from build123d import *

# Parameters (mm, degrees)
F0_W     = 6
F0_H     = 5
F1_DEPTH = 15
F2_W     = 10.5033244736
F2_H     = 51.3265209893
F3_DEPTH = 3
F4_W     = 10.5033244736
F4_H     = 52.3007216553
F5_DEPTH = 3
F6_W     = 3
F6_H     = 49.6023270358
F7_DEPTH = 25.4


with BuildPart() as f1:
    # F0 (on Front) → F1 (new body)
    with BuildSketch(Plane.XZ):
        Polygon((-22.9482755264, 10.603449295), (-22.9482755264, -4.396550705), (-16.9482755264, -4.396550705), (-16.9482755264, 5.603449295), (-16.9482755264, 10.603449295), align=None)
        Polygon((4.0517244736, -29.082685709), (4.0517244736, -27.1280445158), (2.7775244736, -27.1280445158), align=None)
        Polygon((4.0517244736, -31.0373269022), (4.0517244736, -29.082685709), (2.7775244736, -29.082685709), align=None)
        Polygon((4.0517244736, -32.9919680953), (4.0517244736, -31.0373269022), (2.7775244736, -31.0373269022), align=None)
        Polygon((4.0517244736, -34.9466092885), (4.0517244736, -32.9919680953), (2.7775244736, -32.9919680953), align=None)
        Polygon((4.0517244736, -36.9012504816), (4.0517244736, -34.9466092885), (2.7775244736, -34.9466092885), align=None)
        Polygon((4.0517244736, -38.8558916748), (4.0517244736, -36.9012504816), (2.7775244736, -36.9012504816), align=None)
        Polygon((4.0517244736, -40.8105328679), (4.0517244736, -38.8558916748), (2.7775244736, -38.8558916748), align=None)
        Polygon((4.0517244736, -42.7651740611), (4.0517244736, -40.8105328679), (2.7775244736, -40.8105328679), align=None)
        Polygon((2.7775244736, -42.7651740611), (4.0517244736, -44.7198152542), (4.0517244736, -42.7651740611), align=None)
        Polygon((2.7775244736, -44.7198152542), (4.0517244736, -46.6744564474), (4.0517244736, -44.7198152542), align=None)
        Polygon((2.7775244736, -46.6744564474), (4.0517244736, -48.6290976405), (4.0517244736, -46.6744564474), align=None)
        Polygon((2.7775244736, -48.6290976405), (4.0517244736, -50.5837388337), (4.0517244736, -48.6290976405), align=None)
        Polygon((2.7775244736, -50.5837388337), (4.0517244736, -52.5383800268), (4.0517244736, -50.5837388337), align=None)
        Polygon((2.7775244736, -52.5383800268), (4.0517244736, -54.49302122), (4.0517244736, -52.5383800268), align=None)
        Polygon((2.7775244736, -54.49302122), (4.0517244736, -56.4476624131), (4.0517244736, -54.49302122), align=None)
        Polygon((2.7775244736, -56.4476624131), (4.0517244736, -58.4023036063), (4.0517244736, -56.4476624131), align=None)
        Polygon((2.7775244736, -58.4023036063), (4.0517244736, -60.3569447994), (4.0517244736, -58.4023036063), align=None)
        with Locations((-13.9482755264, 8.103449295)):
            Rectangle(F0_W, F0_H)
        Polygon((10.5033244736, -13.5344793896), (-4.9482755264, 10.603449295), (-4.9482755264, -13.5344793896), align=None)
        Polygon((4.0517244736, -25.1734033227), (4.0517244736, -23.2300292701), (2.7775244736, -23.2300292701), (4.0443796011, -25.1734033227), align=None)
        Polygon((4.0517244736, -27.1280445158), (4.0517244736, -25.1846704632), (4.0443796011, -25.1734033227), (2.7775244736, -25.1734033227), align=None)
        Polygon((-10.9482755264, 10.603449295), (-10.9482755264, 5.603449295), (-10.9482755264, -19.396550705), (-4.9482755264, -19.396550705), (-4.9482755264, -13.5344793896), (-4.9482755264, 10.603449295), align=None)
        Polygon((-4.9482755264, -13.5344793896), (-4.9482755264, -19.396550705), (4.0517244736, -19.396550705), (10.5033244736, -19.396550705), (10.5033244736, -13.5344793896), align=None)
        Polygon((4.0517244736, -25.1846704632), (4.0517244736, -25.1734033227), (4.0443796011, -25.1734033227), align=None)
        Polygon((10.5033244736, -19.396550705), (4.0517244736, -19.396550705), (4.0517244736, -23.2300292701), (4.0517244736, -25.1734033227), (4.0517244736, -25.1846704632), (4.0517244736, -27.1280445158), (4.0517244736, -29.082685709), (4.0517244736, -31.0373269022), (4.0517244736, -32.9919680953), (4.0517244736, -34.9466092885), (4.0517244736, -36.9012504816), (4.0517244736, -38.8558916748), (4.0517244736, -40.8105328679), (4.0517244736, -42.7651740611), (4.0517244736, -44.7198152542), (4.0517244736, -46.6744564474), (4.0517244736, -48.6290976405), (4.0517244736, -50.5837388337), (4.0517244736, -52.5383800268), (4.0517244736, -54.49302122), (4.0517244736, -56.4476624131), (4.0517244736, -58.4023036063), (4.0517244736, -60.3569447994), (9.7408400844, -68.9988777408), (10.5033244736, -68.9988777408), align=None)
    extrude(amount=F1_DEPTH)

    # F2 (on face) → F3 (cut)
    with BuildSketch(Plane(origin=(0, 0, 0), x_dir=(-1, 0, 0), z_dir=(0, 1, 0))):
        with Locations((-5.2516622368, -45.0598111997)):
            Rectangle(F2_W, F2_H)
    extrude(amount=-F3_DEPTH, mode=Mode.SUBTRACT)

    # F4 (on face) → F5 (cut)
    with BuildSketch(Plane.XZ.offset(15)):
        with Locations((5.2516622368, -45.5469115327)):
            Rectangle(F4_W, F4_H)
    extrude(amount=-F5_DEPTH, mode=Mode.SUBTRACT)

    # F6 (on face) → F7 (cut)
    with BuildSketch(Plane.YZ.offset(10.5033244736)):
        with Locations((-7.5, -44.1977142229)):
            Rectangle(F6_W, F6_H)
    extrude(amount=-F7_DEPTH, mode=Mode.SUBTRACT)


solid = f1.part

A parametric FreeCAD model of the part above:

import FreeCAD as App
import Part
import Sketcher
Q = App.Units.Quantity


def add_polygon(sketch, points):
    """Adds a closed chain of lines whose ends are joined by coincident constraints."""
    first, n = sketch.GeometryCount, len(points)
    for a, b in zip(points, points[1:] + points[:1]):
        sketch.addGeometry(Part.LineSegment(App.Vector(*a, 0), App.Vector(*b, 0)), False)
    for i in range(n):
        sketch.addConstraint(Sketcher.Constraint("Coincident", first + i, 2, first + (i + 1) % n, 1))

doc = App.newDocument("Part")
body = doc.addObject("PartDesign::Body", "Body")

sketch1 = body.newObject("Sketcher::SketchObject", "Sketch")
sketch1.AttachmentSupport = (doc.getObject("XZ_Plane"), [""])
sketch1.MapMode = "FlatFace"
add_polygon(sketch1, [(-22.9, 10.6), (-22.9, -4.4), (-16.9, -4.4), (-16.9, 5.6), (-10.9, 5.6), (-10.9, -19.4), (4.1, -19.4), (4.1, -23.2), (2.8, -23.2), (4, -25.2), (2.8, -25.2), (4.1, -27.1), (2.8, -27.1), (4.1, -29.1), (2.8, -29.1), (4.1, -31), (2.8, -31), (4.1, -33), (2.8, -33), (4.1, -34.9), (2.8, -34.9), (4.1, -36.9), (2.8, -36.9), (4.1, -38.9), (2.8, -38.9), (4.1, -40.8), (2.8, -40.8), (4.1, -42.8), (2.8, -42.8), (4.1, -44.7), (2.8, -44.7), (4.1, -46.7), (2.8, -46.7), (4.1, -48.6), (2.8, -48.6), (4.1, -50.6), (2.8, -50.6), (4.1, -52.5), (2.8, -52.5), (4.1, -54.5), (2.8, -54.5), (4.1, -56.4), (2.8, -56.4), (4.1, -58.4), (2.8, -58.4), (4.1, -60.4), (9.7, -69), (10.5, -69), (10.5, -13.5), (-4.9, 10.6)])
sketch1.addConstraint(Sketcher.Constraint("Vertical", 0))
sketch1.addConstraint(Sketcher.Constraint("Horizontal", 1))
sketch1.addConstraint(Sketcher.Constraint("Vertical", 2))
sketch1.addConstraint(Sketcher.Constraint("Horizontal", 3))
sketch1.addConstraint(Sketcher.Constraint("Vertical", 4))
sketch1.addConstraint(Sketcher.Constraint("Horizontal", 5))
sketch1.addConstraint(Sketcher.Constraint("Vertical", 6))
sketch1.addConstraint(Sketcher.Constraint("Horizontal", 7))
sketch1.addConstraint(Sketcher.Constraint("Horizontal", 9))
sketch1.addConstraint(Sketcher.Constraint("Horizontal", 11))
sketch1.addConstraint(Sketcher.Constraint("Horizontal", 13))
sketch1.addConstraint(Sketcher.Constraint("Horizontal", 15))
sketch1.addConstraint(Sketcher.Constraint("Horizontal", 17))
sketch1.addConstraint(Sketcher.Constraint("Horizontal", 19))
sketch1.addConstraint(Sketcher.Constraint("Horizontal", 21))
sketch1.addConstraint(Sketcher.Constraint("Horizontal", 23))
sketch1.addConstraint(Sketcher.Constraint("Horizontal", 25))
sketch1.addConstraint(Sketcher.Constraint("Horizontal", 27))
sketch1.addConstraint(Sketcher.Constraint("Horizontal", 29))
sketch1.addConstraint(Sketcher.Constraint("Horizontal", 31))
sketch1.addConstraint(Sketcher.Constraint("Horizontal", 33))
sketch1.addConstraint(Sketcher.Constraint("Horizontal", 35))
sketch1.addConstraint(Sketcher.Constraint("Horizontal", 37))
sketch1.addConstraint(Sketcher.Constraint("Horizontal", 39))
sketch1.addConstraint(Sketcher.Constraint("Horizontal", 41))
sketch1.addConstraint(Sketcher.Constraint("Horizontal", 43))
sketch1.addConstraint(Sketcher.Constraint("Horizontal", 46))
sketch1.addConstraint(Sketcher.Constraint("Vertical", 47))
sketch1.addConstraint(Sketcher.Constraint("Horizontal", 49))
sketch1.addConstraint(Sketcher.Constraint("Parallel", 8, 10))
sketch1.addConstraint(Sketcher.Constraint("Parallel", 10, 12))
sketch1.addConstraint(Sketcher.Constraint("Parallel", 12, 14))
sketch1.addConstraint(Sketcher.Constraint("Parallel", 14, 16))
sketch1.addConstraint(Sketcher.Constraint("Parallel", 16, 18))
sketch1.addConstraint(Sketcher.Constraint("Parallel", 18, 20))
sketch1.addConstraint(Sketcher.Constraint("Parallel", 20, 22))
sketch1.addConstraint(Sketcher.Constraint("Parallel", 22, 24))
sketch1.addConstraint(Sketcher.Constraint("Parallel", 24, 26))
sketch1.addConstraint(Sketcher.Constraint("Parallel", 26, 28))
sketch1.addConstraint(Sketcher.Constraint("Parallel", 28, 30))
sketch1.addConstraint(Sketcher.Constraint("Parallel", 30, 32))
sketch1.addConstraint(Sketcher.Constraint("Parallel", 32, 34))
sketch1.addConstraint(Sketcher.Constraint("Parallel", 34, 36))
sketch1.addConstraint(Sketcher.Constraint("Parallel", 36, 38))
sketch1.addConstraint(Sketcher.Constraint("Parallel", 38, 40))
sketch1.addConstraint(Sketcher.Constraint("Parallel", 40, 42))
sketch1.addConstraint(Sketcher.Constraint("Parallel", 42, 44))
sketch1.addConstraint(Sketcher.Constraint("Vertical", 7, 2, 9, 2))
sketch1.addConstraint(Sketcher.Constraint("Vertical", 6, 2, 10, 2))
sketch1.addConstraint(Sketcher.Constraint("Vertical", 9, 2, 11, 2))
sketch1.addConstraint(Sketcher.Constraint("Vertical", 10, 2, 12, 2))
sketch1.addConstraint(Sketcher.Constraint("Vertical", 11, 2, 13, 2))
sketch1.addConstraint(Sketcher.Constraint("Vertical", 12, 2, 14, 2))
sketch1.addConstraint(Sketcher.Constraint("Vertical", 13, 2, 15, 2))
sketch1.addConstraint(Sketcher.Constraint("Vertical", 14, 2, 16, 2))
sketch1.addConstraint(Sketcher.Constraint("Vertical", 15, 2, 17, 2))
sketch1.addConstraint(Sketcher.Constraint("Vertical", 16, 2, 18, 2))
sketch1.addConstraint(Sketcher.Constraint("Vertical", 17, 2, 19, 2))
sketch1.addConstraint(Sketcher.Constraint("Vertical", 18, 2, 20, 2))
sketch1.addConstraint(Sketcher.Constraint("Vertical", 19, 2, 21, 2))
sketch1.addConstraint(Sketcher.Constraint("Vertical", 20, 2, 22, 2))
sketch1.addConstraint(Sketcher.Constraint("Vertical", 21, 2, 23, 2))
sketch1.addConstraint(Sketcher.Constraint("Vertical", 22, 2, 24, 2))
sketch1.addConstraint(Sketcher.Constraint("Vertical", 23, 2, 25, 2))
sketch1.addConstraint(Sketcher.Constraint("Vertical", 24, 2, 26, 2))
sketch1.addConstraint(Sketcher.Constraint("Vertical", 25, 2, 27, 2))
sketch1.addConstraint(Sketcher.Constraint("Vertical", 26, 2, 28, 2))
sketch1.addConstraint(Sketcher.Constraint("Vertical", 27, 2, 29, 2))
sketch1.addConstraint(Sketcher.Constraint("Vertical", 28, 2, 30, 2))
sketch1.addConstraint(Sketcher.Constraint("Vertical", 29, 2, 31, 2))
sketch1.addConstraint(Sketcher.Constraint("Vertical", 30, 2, 32, 2))
sketch1.addConstraint(Sketcher.Constraint("Vertical", 31, 2, 33, 2))
sketch1.addConstraint(Sketcher.Constraint("Vertical", 32, 2, 34, 2))
sketch1.addConstraint(Sketcher.Constraint("Vertical", 33, 2, 35, 2))
sketch1.addConstraint(Sketcher.Constraint("Vertical", 34, 2, 36, 2))
sketch1.addConstraint(Sketcher.Constraint("Vertical", 35, 2, 37, 2))
sketch1.addConstraint(Sketcher.Constraint("Vertical", 36, 2, 38, 2))
sketch1.addConstraint(Sketcher.Constraint("Vertical", 37, 2, 39, 2))
sketch1.addConstraint(Sketcher.Constraint("Vertical", 38, 2, 40, 2))
sketch1.addConstraint(Sketcher.Constraint("Vertical", 39, 2, 41, 2))
sketch1.addConstraint(Sketcher.Constraint("Vertical", 40, 2, 42, 2))
sketch1.addConstraint(Sketcher.Constraint("Vertical", 41, 2, 43, 2))
sketch1.addConstraint(Sketcher.Constraint("Vertical", 42, 2, 44, 2))
sketch1.addConstraint(Sketcher.Constraint("Equal", 1, 3))
sketch1.addConstraint(Sketcher.Constraint("Equal", 5, 0))
sketch1.addConstraint(Sketcher.Constraint("DistanceX", 1, 1, 1, 2, Q("6 mm")))
sketch1.addConstraint(Sketcher.Constraint("DistanceX", 5, 1, 5, 2, Q("15 mm")))
sketch1.addConstraint(Sketcher.Constraint("DistanceX", 49, 2, 49, 1, Q("18 mm")))
sketch1.addConstraint(Sketcher.Constraint("DistanceY", 2, 1, 2, 2, Q("10 mm")))
sketch1.addConstraint(Sketcher.Constraint("DistanceY", 4, 2, 4, 1, Q("25 mm")))
sketch1.addConstraint(Sketcher.Constraint("DistanceX", 7, 2, 7, 1, Q("1.2742 mm")))
sketch1.addConstraint(Sketcher.Constraint("DistanceY", 47, 1, 47, 2, Q("55.464398 mm")))
sketch1.addConstraint(Sketcher.Constraint("DistanceY", 6, 2, 6, 1, Q("3.833479 mm")))
sketch1.addConstraint(Sketcher.Constraint("DistanceX", 44, 2, 46, 2, Q("6.4516 mm")))
sketch1.addConstraint(Sketcher.Constraint("Distance", 45, Q("10.346451 mm")))
sketch1.addConstraint(Sketcher.Constraint("Distance", 48, Q("28.659929 mm")))
sketch1.addConstraint(Sketcher.Constraint("DistanceX", 9, 2, 9, 1, Q("1.266855 mm")))
sketch1.addConstraint(Sketcher.Constraint("DistanceX", 46, 1, 46, 2, Q("0.762484 mm")))
sketch1.addConstraint(Sketcher.Constraint("DistanceY", 0, 2, -1, 1, Q("4.396551 mm")))
sketch1.addConstraint(Sketcher.Constraint("DistanceX", -1, 1, 8, 2, Q("4.04438 mm")))
pad1 = body.newObject("PartDesign::Pad", "Pad")
pad1.Profile = sketch1
pad1.Length = 15

sketch2 = body.newObject("Sketcher::SketchObject", "Sketch001")
sketch2.AttachmentSupport = (doc.getObject("XZ_Plane"), [""])
sketch2.MapMode = "FlatFace"
add_polygon(sketch2, [(11, -19), (11, -71), (0, -71), (0, -19)])
sketch2.addConstraint(Sketcher.Constraint("Vertical", 0))
sketch2.addConstraint(Sketcher.Constraint("Horizontal", 1))
sketch2.addConstraint(Sketcher.Constraint("Vertical", 2))
sketch2.addConstraint(Sketcher.Constraint("Horizontal", 3))
sketch2.addConstraint(Sketcher.Constraint("PointOnObject", 1, 2, -2))
sketch2.addConstraint(Sketcher.Constraint("DistanceY", 0, 2, 0, 1, Q("51.326521 mm")))
sketch2.addConstraint(Sketcher.Constraint("DistanceX", 1, 2, 1, 1, Q("10.503324 mm")))
sketch2.addConstraint(Sketcher.Constraint("DistanceY", 0, 2, -1, 1, Q("70.723072 mm")))
pocket1 = body.newObject("PartDesign::Pocket", "Pocket")
pocket1.Profile = sketch2
pocket1.Length = 3
pocket1.Reversed = True

sketch3 = body.newObject("Sketcher::SketchObject", "Sketch002")
sketch3.AttachmentSupport = (doc.getObject("XZ_Plane"), [""])
sketch3.MapMode = "FlatFace"
sketch3.AttachmentOffset = App.Placement(App.Vector(0, 0, 15), App.Rotation())
add_polygon(sketch3, [(0, -19), (0, -72), (11, -72), (11, -19)])
sketch3.addConstraint(Sketcher.Constraint("Vertical", 0))
sketch3.addConstraint(Sketcher.Constraint("Horizontal", 1))
sketch3.addConstraint(Sketcher.Constraint("Vertical", 2))
sketch3.addConstraint(Sketcher.Constraint("Horizontal", 3))
sketch3.addConstraint(Sketcher.Constraint("PointOnObject", 0, 2, -2))
sketch3.addConstraint(Sketcher.Constraint("DistanceY", 0, 2, 0, 1, Q("52.300722 mm")))
sketch3.addConstraint(Sketcher.Constraint("DistanceX", 1, 1, 1, 2, Q("10.503324 mm")))
sketch3.addConstraint(Sketcher.Constraint("DistanceY", 2, 2, -1, 1, Q("19.396551 mm")))
pocket2 = body.newObject("PartDesign::Pocket", "Pocket001")
pocket2.Profile = sketch3
pocket2.Length = 3

sketch4 = body.newObject("Sketcher::SketchObject", "Sketch003")
sketch4.AttachmentSupport = (doc.getObject("YZ_Plane"), [""])
sketch4.MapMode = "FlatFace"
sketch4.AttachmentOffset = App.Placement(App.Vector(0, 0, 10.503324), App.Rotation())
add_polygon(sketch4, [(-9, -19.4), (-9, -69), (-6, -69), (-6, -19.4)])
sketch4.addConstraint(Sketcher.Constraint("Vertical", 0))
sketch4.addConstraint(Sketcher.Constraint("Horizontal", 1))
sketch4.addConstraint(Sketcher.Constraint("Vertical", 2))
sketch4.addConstraint(Sketcher.Constraint("Horizontal", 3))
sketch4.addConstraint(Sketcher.Constraint("DistanceX", 1, 1, 1, 2, Q("3 mm")))
sketch4.addConstraint(Sketcher.Constraint("DistanceX", 0, 2, -1, 1, Q("9 mm")))
sketch4.addConstraint(Sketcher.Constraint("DistanceY", 0, 2, 0, 1, Q("49.602327 mm")))
sketch4.addConstraint(Sketcher.Constraint("DistanceY", 2, 2, -1, 1, Q("19.396551 mm")))
pocket3 = body.newObject("PartDesign::Pocket", "Pocket002")
pocket3.Profile = sketch4
pocket3.Length = 25.4

doc.recompute()
